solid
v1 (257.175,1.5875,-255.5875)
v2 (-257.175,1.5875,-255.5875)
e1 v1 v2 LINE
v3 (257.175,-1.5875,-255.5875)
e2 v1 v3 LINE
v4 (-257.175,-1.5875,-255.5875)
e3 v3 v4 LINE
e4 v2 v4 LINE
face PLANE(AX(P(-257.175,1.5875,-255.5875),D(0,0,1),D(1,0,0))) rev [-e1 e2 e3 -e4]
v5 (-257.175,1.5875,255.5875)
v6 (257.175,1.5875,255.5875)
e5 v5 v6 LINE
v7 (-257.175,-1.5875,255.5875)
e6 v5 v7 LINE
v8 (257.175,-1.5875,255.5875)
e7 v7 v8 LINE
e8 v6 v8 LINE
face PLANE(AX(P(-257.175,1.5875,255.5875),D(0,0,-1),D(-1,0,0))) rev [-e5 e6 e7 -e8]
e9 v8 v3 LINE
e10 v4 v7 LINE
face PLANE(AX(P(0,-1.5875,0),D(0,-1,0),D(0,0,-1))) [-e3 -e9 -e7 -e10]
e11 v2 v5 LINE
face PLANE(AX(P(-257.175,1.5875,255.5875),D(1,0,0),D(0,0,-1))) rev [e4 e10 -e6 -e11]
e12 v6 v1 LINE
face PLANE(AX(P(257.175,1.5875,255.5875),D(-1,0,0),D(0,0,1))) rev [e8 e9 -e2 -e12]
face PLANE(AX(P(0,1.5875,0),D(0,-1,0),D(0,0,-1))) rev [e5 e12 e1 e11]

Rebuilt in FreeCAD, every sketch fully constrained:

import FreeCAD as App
import Part
import Sketcher
Q = App.Units.Quantity


def add_polygon(sketch, points):
    """Adds a closed chain of lines whose ends are joined by coincident constraints."""
    first, n = sketch.GeometryCount, len(points)
    for a, b in zip(points, points[1:] + points[:1]):
        sketch.addGeometry(Part.LineSegment(App.Vector(*a, 0), App.Vector(*b, 0)), False)
    for i in range(n):
        sketch.addConstraint(Sketcher.Constraint("Coincident", first + i, 2, first + (i + 1) % n, 1))

doc = App.newDocument("Part")
params = doc.addObject("Spreadsheet::Sheet", "Params")
for row, (alias, value) in enumerate([
    ("sketch1_width", "20.25 in"),
    ("sketch1_height", "20.125 in"),
    ("pad1_length", "0.125 in"),
], start=1):
    params.set(f"A{row}", alias)
    params.set(f"B{row}", "=" + value)
    params.setAlias(f"B{row}", alias)

body = doc.addObject("PartDesign::Body", "Body")

sketch1 = body.newObject("Sketcher::SketchObject", "Sketch")
sketch1.AttachmentSupport = (doc.getObject("XZ_Plane"), [""])
sketch1.MapMode = "FlatFace"
add_polygon(sketch1, [(-257.175, -255.5875), (-257.175, 255.5875), (257.175, 255.5875), (257.175, -255.5875)])
sketch1.addConstraint([
    Sketcher.Constraint("Vertical", 0),
    Sketcher.Constraint("Horizontal", 1),
    Sketcher.Constraint("Vertical", 2),
    Sketcher.Constraint("Horizontal", 3),
    Sketcher.Constraint("Symmetric", 0, 2, 2, 2, -1, 1),
    Sketcher.Constraint("DistanceX", 1, 1, 1, 2, Q("20.25 in")),
    Sketcher.Constraint("DistanceY", 0, 1, 0, 2, Q("20.125 in")),
])
sketch1.setExpression("Constraints[9]", "Params.sketch1_width")
sketch1.setExpression("Constraints[10]", "Params.sketch1_height")
pad1 = body.newObject("PartDesign::Pad", "Pad")
pad1.Profile = sketch1
pad1.setExpression("Length", "Params.pad1_length")
pad1.Midplane = True

doc.recompute()
